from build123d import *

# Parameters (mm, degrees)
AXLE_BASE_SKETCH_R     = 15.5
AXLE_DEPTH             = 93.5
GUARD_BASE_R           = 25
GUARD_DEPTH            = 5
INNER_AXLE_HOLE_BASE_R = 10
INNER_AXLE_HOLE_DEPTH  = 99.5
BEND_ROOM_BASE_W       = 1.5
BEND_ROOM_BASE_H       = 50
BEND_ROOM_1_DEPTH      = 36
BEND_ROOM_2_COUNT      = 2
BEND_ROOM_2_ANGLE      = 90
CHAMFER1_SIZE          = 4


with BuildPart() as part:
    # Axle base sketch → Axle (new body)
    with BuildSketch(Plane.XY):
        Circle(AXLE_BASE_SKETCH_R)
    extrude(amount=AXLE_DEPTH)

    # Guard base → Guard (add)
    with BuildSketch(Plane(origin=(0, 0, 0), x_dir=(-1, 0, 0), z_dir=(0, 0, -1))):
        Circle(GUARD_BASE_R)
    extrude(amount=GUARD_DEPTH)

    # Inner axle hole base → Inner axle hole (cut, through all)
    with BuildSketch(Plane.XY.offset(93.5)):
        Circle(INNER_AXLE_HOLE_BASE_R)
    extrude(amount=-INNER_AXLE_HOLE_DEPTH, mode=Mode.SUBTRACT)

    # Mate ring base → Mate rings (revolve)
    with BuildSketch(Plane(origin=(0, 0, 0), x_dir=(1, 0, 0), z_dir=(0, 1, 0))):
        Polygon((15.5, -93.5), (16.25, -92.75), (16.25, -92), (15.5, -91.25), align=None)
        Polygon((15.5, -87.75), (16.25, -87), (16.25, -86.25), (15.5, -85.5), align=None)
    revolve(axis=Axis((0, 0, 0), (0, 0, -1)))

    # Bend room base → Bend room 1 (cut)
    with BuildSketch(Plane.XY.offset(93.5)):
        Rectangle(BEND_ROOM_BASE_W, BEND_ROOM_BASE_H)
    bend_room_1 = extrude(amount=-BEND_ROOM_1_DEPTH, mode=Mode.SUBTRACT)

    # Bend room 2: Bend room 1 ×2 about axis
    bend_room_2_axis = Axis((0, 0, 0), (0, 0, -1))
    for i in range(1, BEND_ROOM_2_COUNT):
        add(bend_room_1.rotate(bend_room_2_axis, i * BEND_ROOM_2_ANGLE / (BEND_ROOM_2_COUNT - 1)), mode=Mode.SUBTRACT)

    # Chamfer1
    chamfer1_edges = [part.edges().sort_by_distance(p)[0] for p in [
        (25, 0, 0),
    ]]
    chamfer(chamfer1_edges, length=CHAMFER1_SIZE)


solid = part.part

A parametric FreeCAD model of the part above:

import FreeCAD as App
import Part
import Sketcher
from FreeCAD import Vector
Q = App.Units.Quantity


def edges_at(feature, points):
    """Names of the edges that pass closest to the given points."""
    edges = feature.Shape.Edges
    near = lambda p: min(range(len(edges)), key=lambda i: edges[i].distToShape(Part.Vertex(*p))[0])
    return sorted({f"Edge{near(p) + 1}" for p in points})


def add_polygon(sketch, points):
    """Adds a closed chain of lines whose ends are joined by coincident constraints."""
    first, n = sketch.GeometryCount, len(points)
    for a, b in zip(points, points[1:] + points[:1]):
        sketch.addGeometry(Part.LineSegment(App.Vector(*a, 0), App.Vector(*b, 0)), False)
    for i in range(n):
        sketch.addConstraint(Sketcher.Constraint("Coincident", first + i, 2, first + (i + 1) % n, 1))

doc = App.newDocument("Part")
body = doc.addObject("PartDesign::Body", "Body")

# Sketch on XY plane
sketch1 = doc.addObject("Sketcher::SketchObject", "Sketch")
body.addObject(sketch1)
sketch1.AttachmentSupport = (doc.XY_Plane, [""])
sketch1.MapMode = "FlatFace"
sketch1.addGeometry(Part.Circle(Vector(0, 0, 0), Vector(0, 0, 1), 15.5), False)
sketch1.addConstraint([
    Sketcher.Constraint("Coincident", 0, 3, -1, 1),
    Sketcher.Constraint("Diameter", 0, Q("31 mm")),
])
pad1 = doc.addObject("PartDesign::Pad", "Pad")
body.addObject(pad1)
pad1.Profile = sketch1
pad1.Length = 93.5

# Sketch on XY plane
sketch2 = doc.addObject("Sketcher::SketchObject", "Sketch001")
body.addObject(sketch2)
sketch2.AttachmentSupport = (doc.XY_Plane, [""])
sketch2.MapMode = "FlatFace"
sketch2.addGeometry(Part.Circle(Vector(0, 0, 0), Vector(0, 0, 1), 25), False)
sketch2.addConstraint([
    Sketcher.Constraint("Coincident", 0, 3, -1, 1),
    Sketcher.Constraint("Diameter", 0, Q("50 mm")),
])
pad2 = doc.addObject("PartDesign::Pad", "Pad001")
body.addObject(pad2)
pad2.Profile = sketch2
pad2.Length = 5
pad2.Reversed = True

# Sketch on XY plane
sketch3 = doc.addObject("Sketcher::SketchObject", "Sketch002")
body.addObject(sketch3)
sketch3.AttachmentSupport = (doc.XY_Plane, [""])
sketch3.MapMode = "FlatFace"
sketch3.AttachmentOffset = App.Placement(Vector(0, 0, 93.5), App.Rotation())
sketch3.addGeometry(Part.Circle(Vector(0, 0, 0), Vector(0, 0, 1), 10), False)
sketch3.addConstraint([
    Sketcher.Constraint("Coincident", 0, 3, -1, 1),
    Sketcher.Constraint("Diameter", 0, Q("20 mm")),
])
pocket1 = doc.addObject("PartDesign::Pocket", "Pocket")
body.addObject(pocket1)
pocket1.Profile = sketch3
pocket1.Type = "ThroughAll"

# Sketch on XZ plane
sketch4 = doc.addObject("Sketcher::SketchObject", "Sketch003")
body.addObject(sketch4)
sketch4.AttachmentSupport = (doc.XZ_Plane, [""])
sketch4.MapMode = "FlatFace"
add_polygon(sketch4, [(15.5, 93.5), (16.25, 92.75), (16.25, 92), (15.5, 91.25)])  # lines 0-3
add_polygon(sketch4, [(15.5, 87.75), (16.25, 87), (16.25, 86.25), (15.5, 85.5)])  # lines 4-7
sketch4.addConstraint([
    Sketcher.Constraint("Vertical", 1),
    Sketcher.Constraint("Vertical", 3),
    Sketcher.Constraint("Vertical", 5),
    Sketcher.Constraint("Vertical", 7),
    Sketcher.Constraint("Perpendicular", 0, 2),
    Sketcher.Constraint("Perpendicular", 2, 4),
    Sketcher.Constraint("Perpendicular", 4, 6),
    Sketcher.Constraint("Vertical", 1, 2, 4, 2),
    Sketcher.Constraint("Vertical", 3, 2, 6, 2),
    Sketcher.Constraint("Equal", 1, 5),
    Sketcher.Constraint("Equal", 0, 2),
    Sketcher.Constraint("DistanceY", -1, 1, 1, 2, Q("92 mm")),
    Sketcher.Constraint("DistanceY", -1, 1, 4, 2, Q("87 mm")),
    Sketcher.Constraint("DistanceY", 5, 2, 2, 2, Q("5 mm")),
    Sketcher.Constraint("DistanceY", 1, 2, 1, 1, Q("0.75 mm")),
    Sketcher.Constraint("DistanceX", -1, 1, 2, 2, Q("15.5 mm")),
])
revolution = doc.addObject("PartDesign::Revolution", "Revolution")
body.addObject(revolution)
revolution.Profile = sketch4
revolution.ReferenceAxis = (sketch4, ["V_Axis"])
revolution.Angle = 360

# Sketch on XY plane
sketch5 = doc.addObject("Sketcher::SketchObject", "Sketch004")
body.addObject(sketch5)
sketch5.AttachmentSupport = (doc.XY_Plane, [""])
sketch5.MapMode = "FlatFace"
sketch5.AttachmentOffset = App.Placement(Vector(0, 0, 93.5), App.Rotation())
add_polygon(sketch5, [(-0.75, 25), (-0.75, -25), (0.75, -25), (0.75, 25)])  # lines 0-3
sketch5.addConstraint([
    Sketcher.Constraint("Vertical", 0),
    Sketcher.Constraint("Horizontal", 1),
    Sketcher.Constraint("Vertical", 2),
    Sketcher.Constraint("Horizontal", 3),
    Sketcher.Constraint("Symmetric", 0, 2, 2, 2, -1, 1),
    Sketcher.Constraint("DistanceY", 0, 2, 0, 1, Q("50 mm")),
    Sketcher.Constraint("DistanceX", 1, 1, 1, 2, Q("1.5 mm")),
])
pocket2 = doc.addObject("PartDesign::Pocket", "Pocket001")
body.addObject(pocket2)
pocket2.Profile = sketch5
pocket2.Length = 36
doc.recompute()

polarpattern = doc.addObject("PartDesign::PolarPattern", "PolarPattern")
body.addObject(polarpattern)
polarpattern.Originals = [pocket2]
polarpattern.Axis = (doc.Z_Axis, [""])
polarpattern.Angle = 90
polarpattern.Occurrences = 2
polarpattern.Reversed = True
body.Tip = polarpattern
doc.recompute()

chamfer = doc.addObject("PartDesign::Chamfer", "Chamfer")
body.addObject(chamfer)
chamfer.Base = (polarpattern, edges_at(polarpattern, [(25, 0, 0)]))
chamfer.Size = 4

doc.recompute()
